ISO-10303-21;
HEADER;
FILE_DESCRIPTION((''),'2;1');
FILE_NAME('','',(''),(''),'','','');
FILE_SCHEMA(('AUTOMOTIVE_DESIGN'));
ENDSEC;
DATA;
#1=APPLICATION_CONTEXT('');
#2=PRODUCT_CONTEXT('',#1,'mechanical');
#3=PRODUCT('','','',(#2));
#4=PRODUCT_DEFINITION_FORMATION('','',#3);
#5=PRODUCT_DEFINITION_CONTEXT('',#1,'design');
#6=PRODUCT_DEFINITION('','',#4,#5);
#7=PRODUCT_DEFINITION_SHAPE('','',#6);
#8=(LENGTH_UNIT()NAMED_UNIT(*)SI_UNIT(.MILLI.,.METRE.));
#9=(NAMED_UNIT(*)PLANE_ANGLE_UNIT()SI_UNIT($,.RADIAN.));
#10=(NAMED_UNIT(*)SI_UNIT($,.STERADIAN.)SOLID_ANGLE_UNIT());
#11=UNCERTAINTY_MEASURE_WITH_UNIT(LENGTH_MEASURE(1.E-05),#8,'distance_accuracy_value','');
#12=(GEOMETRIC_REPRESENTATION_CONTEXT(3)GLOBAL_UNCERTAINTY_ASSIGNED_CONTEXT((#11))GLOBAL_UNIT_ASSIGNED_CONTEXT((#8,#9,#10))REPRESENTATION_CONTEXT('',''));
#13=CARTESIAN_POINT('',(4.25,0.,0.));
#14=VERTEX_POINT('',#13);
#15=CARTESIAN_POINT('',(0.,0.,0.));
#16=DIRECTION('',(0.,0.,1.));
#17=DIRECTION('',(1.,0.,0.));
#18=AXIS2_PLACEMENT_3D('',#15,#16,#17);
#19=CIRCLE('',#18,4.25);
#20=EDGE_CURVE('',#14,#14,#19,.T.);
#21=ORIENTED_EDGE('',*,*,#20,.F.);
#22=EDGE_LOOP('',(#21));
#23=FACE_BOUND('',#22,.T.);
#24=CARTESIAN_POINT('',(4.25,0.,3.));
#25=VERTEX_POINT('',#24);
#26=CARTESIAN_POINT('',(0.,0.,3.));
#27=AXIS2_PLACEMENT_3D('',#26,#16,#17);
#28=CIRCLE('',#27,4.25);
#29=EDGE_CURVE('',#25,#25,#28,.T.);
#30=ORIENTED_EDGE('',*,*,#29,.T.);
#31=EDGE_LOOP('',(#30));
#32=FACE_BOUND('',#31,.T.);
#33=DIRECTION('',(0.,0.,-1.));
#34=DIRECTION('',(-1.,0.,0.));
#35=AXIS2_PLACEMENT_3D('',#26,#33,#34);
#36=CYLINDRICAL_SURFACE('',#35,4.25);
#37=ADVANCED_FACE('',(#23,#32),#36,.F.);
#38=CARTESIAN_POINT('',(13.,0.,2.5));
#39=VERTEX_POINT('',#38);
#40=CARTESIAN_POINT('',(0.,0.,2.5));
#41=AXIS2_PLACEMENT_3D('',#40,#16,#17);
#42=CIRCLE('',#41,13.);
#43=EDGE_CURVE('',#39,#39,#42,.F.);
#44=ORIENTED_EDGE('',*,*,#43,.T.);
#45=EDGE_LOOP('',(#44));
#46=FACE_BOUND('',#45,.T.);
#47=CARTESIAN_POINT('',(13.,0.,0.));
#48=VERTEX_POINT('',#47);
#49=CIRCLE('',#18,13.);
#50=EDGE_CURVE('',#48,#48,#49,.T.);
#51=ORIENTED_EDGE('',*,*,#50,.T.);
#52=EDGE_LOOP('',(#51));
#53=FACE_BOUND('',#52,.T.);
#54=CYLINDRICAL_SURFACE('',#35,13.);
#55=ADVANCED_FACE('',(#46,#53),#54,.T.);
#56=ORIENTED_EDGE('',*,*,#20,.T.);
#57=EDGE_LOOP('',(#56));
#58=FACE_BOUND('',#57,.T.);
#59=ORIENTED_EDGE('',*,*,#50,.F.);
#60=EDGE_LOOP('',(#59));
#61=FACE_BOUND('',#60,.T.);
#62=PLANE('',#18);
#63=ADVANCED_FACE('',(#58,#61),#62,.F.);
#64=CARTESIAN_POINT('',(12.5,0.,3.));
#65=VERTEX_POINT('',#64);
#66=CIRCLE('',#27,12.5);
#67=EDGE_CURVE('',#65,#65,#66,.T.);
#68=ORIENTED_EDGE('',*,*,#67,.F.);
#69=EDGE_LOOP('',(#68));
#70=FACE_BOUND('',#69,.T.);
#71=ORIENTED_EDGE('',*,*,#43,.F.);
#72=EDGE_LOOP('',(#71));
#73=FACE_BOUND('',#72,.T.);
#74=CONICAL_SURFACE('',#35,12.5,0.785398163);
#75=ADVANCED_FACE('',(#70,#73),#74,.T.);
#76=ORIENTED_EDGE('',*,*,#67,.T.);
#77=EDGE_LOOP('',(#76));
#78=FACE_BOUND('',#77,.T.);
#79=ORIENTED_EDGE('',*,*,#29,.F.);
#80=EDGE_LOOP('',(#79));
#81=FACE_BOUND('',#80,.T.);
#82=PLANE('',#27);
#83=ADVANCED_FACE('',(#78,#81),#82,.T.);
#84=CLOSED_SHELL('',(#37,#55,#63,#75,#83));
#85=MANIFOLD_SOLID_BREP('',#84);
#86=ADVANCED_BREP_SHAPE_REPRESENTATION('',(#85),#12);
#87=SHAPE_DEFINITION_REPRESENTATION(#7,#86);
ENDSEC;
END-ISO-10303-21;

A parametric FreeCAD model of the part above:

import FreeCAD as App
import Part
import Sketcher
from FreeCAD import Vector
Q = App.Units.Quantity


def edges_at(feature, points):
    """Names of the edges that pass closest to the given points."""
    edges = feature.Shape.Edges
    near = lambda p: min(range(len(edges)), key=lambda i: edges[i].distToShape(Part.Vertex(*p))[0])
    return sorted({f"Edge{near(p) + 1}" for p in points})

doc = App.newDocument("Part")
body = doc.addObject("PartDesign::Body", "Body")

sketch1 = body.newObject("Sketcher::SketchObject", "Sketch")
sketch1.AttachmentSupport = (doc.getObject("XY_Plane"), [""])
sketch1.MapMode = "FlatFace"
sketch1.addGeometry(Part.Circle(Vector(0, 0, 0), Vector(0, 0, 1), 13), False)
sketch1.addGeometry(Part.Circle(Vector(0, 0, 0), Vector(0, 0, 1), 4.2), False)
sketch1.addConstraint(Sketcher.Constraint("Coincident", 0, 3, -1, 1))
sketch1.addConstraint(Sketcher.Constraint("Coincident", 1, 3, -1, 1))
sketch1.addConstraint(Sketcher.Constraint("Diameter", 0, Q("26 mm")))
sketch1.addConstraint(Sketcher.Constraint("Diameter", 1, Q("8.5 mm")))
pad1 = body.newObject("PartDesign::Pad", "Pad")
pad1.Profile = sketch1
pad1.Length = 3
doc.recompute()

chamfer = body.newObject("PartDesign::Chamfer", "Chamfer")
chamfer.Base = (pad1, edges_at(pad1, [(-13, 0, 3)]))
chamfer.Size = 0.5

doc.recompute()
